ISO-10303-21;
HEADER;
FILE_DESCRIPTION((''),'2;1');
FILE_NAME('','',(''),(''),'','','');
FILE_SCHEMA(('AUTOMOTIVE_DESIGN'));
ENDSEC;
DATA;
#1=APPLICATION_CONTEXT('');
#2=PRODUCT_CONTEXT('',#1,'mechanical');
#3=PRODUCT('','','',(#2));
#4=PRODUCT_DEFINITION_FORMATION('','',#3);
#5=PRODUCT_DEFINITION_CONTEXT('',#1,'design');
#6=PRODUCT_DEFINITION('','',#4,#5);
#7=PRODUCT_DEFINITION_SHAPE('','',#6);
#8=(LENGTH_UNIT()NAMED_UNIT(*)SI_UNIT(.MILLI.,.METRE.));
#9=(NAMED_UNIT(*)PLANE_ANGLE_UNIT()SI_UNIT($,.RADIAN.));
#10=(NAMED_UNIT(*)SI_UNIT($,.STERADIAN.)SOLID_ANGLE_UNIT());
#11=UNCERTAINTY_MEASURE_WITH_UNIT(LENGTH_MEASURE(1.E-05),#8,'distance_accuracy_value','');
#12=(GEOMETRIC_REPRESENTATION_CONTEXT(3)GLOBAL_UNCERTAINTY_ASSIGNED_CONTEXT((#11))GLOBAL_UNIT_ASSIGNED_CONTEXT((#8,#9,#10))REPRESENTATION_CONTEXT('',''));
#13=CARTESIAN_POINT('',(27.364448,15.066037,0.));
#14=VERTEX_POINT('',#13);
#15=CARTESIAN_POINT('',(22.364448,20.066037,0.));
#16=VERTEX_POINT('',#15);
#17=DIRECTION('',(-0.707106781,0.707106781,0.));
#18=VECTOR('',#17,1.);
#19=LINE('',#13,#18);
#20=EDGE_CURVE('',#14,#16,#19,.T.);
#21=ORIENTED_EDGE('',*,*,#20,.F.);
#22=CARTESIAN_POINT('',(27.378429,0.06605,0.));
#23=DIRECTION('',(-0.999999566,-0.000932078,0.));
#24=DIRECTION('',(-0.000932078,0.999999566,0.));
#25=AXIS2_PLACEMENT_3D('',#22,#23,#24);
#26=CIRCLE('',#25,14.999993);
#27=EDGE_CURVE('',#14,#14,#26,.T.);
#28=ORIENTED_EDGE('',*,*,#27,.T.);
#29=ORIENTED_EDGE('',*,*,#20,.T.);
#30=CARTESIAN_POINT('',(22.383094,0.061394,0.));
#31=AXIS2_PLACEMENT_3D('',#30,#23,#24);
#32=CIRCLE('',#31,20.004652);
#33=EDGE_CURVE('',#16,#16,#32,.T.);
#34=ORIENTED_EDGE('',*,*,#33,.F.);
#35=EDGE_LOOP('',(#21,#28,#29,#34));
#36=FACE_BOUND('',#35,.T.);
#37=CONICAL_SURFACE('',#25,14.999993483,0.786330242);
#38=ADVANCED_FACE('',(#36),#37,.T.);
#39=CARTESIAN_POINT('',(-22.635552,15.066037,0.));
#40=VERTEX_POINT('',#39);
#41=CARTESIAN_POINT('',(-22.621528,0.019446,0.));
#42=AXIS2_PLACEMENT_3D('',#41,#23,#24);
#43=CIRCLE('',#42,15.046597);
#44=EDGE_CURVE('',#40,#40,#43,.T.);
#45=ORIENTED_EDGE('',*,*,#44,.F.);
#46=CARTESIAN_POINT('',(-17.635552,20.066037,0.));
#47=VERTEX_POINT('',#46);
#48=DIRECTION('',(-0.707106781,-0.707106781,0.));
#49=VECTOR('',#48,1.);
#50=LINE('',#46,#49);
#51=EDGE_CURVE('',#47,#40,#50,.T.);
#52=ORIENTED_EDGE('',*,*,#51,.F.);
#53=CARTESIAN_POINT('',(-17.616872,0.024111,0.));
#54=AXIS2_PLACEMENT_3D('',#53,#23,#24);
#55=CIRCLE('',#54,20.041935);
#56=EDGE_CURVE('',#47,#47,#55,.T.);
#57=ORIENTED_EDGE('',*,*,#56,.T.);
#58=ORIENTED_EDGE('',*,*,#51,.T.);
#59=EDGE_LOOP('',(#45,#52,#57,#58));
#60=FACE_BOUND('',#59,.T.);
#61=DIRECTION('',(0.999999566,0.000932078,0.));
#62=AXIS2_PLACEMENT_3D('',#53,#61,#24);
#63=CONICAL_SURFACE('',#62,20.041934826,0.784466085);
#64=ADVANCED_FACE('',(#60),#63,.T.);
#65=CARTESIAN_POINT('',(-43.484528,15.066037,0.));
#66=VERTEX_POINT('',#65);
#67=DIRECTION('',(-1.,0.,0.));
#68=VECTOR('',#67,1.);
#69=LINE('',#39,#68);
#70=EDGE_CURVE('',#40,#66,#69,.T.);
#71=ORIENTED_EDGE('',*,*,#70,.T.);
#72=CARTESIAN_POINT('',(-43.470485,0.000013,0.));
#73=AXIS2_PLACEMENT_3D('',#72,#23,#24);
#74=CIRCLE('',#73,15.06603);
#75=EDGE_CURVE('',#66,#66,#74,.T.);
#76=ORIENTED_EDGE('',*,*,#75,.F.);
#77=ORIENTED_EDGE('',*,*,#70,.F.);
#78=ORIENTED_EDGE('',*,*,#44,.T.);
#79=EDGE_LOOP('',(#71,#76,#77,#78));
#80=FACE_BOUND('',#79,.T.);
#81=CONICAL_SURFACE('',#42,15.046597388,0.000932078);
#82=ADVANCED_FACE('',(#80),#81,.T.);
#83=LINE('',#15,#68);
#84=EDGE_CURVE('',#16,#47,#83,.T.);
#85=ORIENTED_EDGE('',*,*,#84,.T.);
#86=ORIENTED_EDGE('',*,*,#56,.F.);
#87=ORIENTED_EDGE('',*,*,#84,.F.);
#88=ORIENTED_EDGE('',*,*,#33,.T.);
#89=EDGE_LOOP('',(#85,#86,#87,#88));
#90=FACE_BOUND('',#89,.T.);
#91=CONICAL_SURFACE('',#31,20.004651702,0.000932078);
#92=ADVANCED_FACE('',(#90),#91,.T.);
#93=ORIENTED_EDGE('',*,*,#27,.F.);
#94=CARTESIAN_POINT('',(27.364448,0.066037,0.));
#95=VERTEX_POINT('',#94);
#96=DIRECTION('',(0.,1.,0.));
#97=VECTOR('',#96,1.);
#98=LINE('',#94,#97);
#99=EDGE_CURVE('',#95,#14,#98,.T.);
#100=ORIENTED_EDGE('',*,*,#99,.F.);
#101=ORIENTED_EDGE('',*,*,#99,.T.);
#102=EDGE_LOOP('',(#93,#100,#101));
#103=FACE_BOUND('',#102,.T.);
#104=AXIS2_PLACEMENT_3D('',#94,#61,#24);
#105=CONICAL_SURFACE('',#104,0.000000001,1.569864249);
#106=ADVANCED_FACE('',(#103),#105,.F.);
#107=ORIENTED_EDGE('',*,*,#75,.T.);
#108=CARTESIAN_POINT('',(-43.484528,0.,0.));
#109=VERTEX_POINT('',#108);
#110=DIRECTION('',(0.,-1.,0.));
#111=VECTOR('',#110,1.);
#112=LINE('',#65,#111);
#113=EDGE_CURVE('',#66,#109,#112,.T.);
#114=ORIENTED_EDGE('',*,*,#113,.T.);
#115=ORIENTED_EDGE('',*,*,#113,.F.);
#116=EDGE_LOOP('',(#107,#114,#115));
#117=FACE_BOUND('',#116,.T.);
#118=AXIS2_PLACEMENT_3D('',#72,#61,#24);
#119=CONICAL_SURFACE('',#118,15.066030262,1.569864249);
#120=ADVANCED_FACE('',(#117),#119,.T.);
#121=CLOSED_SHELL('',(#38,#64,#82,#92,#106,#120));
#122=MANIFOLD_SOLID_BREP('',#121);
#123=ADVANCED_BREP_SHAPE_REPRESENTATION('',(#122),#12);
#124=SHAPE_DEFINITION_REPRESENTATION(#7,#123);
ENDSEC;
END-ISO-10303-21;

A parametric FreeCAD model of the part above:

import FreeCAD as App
import Part
import Sketcher
from FreeCAD import Vector
Q = App.Units.Quantity

doc = App.newDocument("Part")
body = doc.addObject("PartDesign::Body", "Body")

# Sketch on XY plane
sketch1 = body.newObject("Sketcher::SketchObject", "Sketch")
sketch1.AttachmentSupport = (doc.getObject("XY_Plane"), [""])
sketch1.MapMode = "FlatFace"
sketch1.addGeometry(Part.LineSegment(Vector(22, 20, 0), Vector(-18, 20, 0)), False)
sketch1.addGeometry(Part.LineSegment(Vector(-18, 20, 0), Vector(-23, 15, 0)), False)
sketch1.addGeometry(Part.LineSegment(Vector(-23, 15, 0), Vector(-43, 15, 0)), False)
sketch1.addGeometry(Part.LineSegment(Vector(-43, 15, 0), Vector(-43, 0, 0)), False)
sketch1.addGeometry(Part.LineSegment(Vector(-43, 0, 0), Vector(27, 0, 0)), False)
sketch1.addGeometry(Part.LineSegment(Vector(27, 0, 0), Vector(27, 15, 0)), False)
sketch1.addGeometry(Part.LineSegment(Vector(27, 15, 0), Vector(22, 20, 0)), False)
sketch1.addGeometry(Part.LineSegment(Vector(27, 0, 0), Vector(-43, 0, 0)), True)  # axis
sketch1.addConstraint(Sketcher.Constraint("Coincident", 0, 2, 1, 1))
sketch1.addConstraint(Sketcher.Constraint("Coincident", 1, 2, 2, 1))
sketch1.addConstraint(Sketcher.Constraint("Coincident", 2, 2, 3, 1))
sketch1.addConstraint(Sketcher.Constraint("Coincident", 3, 2, 4, 1))
sketch1.addConstraint(Sketcher.Constraint("Coincident", 4, 2, 5, 1))
sketch1.addConstraint(Sketcher.Constraint("Coincident", 5, 2, 6, 1))
sketch1.addConstraint(Sketcher.Constraint("Coincident", 6, 2, 0, 1))
sketch1.addConstraint(Sketcher.Constraint("Horizontal", 0))
sketch1.addConstraint(Sketcher.Constraint("Horizontal", 2))
sketch1.addConstraint(Sketcher.Constraint("Vertical", 3))
sketch1.addConstraint(Sketcher.Constraint("Vertical", 5))
sketch1.addConstraint(Sketcher.Constraint("Coincident", 7, 2, 3, 2))
sketch1.addConstraint(Sketcher.Constraint("PointOnObject", 3, 2, -1))
sketch1.addConstraint(Sketcher.Constraint("Perpendicular", 1, 6))
sketch1.addConstraint(Sketcher.Constraint("Parallel", 4, 7))
sketch1.addConstraint(Sketcher.Constraint("Horizontal", 2, 2, 5, 2))
sketch1.addConstraint(Sketcher.Constraint("Equal", 1, 6))
sketch1.addConstraint(Sketcher.Constraint("DistanceX", 0, 2, 0, 1, Q("40 mm")))
sketch1.addConstraint(Sketcher.Constraint("DistanceY", 5, 1, 5, 2, Q("15 mm")))
sketch1.addConstraint(Sketcher.Constraint("DistanceX", 1, 2, 0, 2, Q("5 mm")))
sketch1.addConstraint(Sketcher.Constraint("DistanceX", 2, 2, 2, 1, Q("20.848975 mm")))
sketch1.addConstraint(Sketcher.Constraint("DistanceY", 3, 2, 3, 1, Q("15.066037 mm")))
sketch1.addConstraint(Sketcher.Constraint("DistanceX", -1, 1, 7, 1, Q("27.378429 mm")))
sketch1.addConstraint(Sketcher.Constraint("DistanceX", 4, 2, 7, 1, Q("0.013981 mm")))
revolution = body.newObject("PartDesign::Revolution", "Revolution")
revolution.Profile = sketch1
revolution.ReferenceAxis = (sketch1, ["Axis0"])
revolution.Angle = 360

doc.recompute()
